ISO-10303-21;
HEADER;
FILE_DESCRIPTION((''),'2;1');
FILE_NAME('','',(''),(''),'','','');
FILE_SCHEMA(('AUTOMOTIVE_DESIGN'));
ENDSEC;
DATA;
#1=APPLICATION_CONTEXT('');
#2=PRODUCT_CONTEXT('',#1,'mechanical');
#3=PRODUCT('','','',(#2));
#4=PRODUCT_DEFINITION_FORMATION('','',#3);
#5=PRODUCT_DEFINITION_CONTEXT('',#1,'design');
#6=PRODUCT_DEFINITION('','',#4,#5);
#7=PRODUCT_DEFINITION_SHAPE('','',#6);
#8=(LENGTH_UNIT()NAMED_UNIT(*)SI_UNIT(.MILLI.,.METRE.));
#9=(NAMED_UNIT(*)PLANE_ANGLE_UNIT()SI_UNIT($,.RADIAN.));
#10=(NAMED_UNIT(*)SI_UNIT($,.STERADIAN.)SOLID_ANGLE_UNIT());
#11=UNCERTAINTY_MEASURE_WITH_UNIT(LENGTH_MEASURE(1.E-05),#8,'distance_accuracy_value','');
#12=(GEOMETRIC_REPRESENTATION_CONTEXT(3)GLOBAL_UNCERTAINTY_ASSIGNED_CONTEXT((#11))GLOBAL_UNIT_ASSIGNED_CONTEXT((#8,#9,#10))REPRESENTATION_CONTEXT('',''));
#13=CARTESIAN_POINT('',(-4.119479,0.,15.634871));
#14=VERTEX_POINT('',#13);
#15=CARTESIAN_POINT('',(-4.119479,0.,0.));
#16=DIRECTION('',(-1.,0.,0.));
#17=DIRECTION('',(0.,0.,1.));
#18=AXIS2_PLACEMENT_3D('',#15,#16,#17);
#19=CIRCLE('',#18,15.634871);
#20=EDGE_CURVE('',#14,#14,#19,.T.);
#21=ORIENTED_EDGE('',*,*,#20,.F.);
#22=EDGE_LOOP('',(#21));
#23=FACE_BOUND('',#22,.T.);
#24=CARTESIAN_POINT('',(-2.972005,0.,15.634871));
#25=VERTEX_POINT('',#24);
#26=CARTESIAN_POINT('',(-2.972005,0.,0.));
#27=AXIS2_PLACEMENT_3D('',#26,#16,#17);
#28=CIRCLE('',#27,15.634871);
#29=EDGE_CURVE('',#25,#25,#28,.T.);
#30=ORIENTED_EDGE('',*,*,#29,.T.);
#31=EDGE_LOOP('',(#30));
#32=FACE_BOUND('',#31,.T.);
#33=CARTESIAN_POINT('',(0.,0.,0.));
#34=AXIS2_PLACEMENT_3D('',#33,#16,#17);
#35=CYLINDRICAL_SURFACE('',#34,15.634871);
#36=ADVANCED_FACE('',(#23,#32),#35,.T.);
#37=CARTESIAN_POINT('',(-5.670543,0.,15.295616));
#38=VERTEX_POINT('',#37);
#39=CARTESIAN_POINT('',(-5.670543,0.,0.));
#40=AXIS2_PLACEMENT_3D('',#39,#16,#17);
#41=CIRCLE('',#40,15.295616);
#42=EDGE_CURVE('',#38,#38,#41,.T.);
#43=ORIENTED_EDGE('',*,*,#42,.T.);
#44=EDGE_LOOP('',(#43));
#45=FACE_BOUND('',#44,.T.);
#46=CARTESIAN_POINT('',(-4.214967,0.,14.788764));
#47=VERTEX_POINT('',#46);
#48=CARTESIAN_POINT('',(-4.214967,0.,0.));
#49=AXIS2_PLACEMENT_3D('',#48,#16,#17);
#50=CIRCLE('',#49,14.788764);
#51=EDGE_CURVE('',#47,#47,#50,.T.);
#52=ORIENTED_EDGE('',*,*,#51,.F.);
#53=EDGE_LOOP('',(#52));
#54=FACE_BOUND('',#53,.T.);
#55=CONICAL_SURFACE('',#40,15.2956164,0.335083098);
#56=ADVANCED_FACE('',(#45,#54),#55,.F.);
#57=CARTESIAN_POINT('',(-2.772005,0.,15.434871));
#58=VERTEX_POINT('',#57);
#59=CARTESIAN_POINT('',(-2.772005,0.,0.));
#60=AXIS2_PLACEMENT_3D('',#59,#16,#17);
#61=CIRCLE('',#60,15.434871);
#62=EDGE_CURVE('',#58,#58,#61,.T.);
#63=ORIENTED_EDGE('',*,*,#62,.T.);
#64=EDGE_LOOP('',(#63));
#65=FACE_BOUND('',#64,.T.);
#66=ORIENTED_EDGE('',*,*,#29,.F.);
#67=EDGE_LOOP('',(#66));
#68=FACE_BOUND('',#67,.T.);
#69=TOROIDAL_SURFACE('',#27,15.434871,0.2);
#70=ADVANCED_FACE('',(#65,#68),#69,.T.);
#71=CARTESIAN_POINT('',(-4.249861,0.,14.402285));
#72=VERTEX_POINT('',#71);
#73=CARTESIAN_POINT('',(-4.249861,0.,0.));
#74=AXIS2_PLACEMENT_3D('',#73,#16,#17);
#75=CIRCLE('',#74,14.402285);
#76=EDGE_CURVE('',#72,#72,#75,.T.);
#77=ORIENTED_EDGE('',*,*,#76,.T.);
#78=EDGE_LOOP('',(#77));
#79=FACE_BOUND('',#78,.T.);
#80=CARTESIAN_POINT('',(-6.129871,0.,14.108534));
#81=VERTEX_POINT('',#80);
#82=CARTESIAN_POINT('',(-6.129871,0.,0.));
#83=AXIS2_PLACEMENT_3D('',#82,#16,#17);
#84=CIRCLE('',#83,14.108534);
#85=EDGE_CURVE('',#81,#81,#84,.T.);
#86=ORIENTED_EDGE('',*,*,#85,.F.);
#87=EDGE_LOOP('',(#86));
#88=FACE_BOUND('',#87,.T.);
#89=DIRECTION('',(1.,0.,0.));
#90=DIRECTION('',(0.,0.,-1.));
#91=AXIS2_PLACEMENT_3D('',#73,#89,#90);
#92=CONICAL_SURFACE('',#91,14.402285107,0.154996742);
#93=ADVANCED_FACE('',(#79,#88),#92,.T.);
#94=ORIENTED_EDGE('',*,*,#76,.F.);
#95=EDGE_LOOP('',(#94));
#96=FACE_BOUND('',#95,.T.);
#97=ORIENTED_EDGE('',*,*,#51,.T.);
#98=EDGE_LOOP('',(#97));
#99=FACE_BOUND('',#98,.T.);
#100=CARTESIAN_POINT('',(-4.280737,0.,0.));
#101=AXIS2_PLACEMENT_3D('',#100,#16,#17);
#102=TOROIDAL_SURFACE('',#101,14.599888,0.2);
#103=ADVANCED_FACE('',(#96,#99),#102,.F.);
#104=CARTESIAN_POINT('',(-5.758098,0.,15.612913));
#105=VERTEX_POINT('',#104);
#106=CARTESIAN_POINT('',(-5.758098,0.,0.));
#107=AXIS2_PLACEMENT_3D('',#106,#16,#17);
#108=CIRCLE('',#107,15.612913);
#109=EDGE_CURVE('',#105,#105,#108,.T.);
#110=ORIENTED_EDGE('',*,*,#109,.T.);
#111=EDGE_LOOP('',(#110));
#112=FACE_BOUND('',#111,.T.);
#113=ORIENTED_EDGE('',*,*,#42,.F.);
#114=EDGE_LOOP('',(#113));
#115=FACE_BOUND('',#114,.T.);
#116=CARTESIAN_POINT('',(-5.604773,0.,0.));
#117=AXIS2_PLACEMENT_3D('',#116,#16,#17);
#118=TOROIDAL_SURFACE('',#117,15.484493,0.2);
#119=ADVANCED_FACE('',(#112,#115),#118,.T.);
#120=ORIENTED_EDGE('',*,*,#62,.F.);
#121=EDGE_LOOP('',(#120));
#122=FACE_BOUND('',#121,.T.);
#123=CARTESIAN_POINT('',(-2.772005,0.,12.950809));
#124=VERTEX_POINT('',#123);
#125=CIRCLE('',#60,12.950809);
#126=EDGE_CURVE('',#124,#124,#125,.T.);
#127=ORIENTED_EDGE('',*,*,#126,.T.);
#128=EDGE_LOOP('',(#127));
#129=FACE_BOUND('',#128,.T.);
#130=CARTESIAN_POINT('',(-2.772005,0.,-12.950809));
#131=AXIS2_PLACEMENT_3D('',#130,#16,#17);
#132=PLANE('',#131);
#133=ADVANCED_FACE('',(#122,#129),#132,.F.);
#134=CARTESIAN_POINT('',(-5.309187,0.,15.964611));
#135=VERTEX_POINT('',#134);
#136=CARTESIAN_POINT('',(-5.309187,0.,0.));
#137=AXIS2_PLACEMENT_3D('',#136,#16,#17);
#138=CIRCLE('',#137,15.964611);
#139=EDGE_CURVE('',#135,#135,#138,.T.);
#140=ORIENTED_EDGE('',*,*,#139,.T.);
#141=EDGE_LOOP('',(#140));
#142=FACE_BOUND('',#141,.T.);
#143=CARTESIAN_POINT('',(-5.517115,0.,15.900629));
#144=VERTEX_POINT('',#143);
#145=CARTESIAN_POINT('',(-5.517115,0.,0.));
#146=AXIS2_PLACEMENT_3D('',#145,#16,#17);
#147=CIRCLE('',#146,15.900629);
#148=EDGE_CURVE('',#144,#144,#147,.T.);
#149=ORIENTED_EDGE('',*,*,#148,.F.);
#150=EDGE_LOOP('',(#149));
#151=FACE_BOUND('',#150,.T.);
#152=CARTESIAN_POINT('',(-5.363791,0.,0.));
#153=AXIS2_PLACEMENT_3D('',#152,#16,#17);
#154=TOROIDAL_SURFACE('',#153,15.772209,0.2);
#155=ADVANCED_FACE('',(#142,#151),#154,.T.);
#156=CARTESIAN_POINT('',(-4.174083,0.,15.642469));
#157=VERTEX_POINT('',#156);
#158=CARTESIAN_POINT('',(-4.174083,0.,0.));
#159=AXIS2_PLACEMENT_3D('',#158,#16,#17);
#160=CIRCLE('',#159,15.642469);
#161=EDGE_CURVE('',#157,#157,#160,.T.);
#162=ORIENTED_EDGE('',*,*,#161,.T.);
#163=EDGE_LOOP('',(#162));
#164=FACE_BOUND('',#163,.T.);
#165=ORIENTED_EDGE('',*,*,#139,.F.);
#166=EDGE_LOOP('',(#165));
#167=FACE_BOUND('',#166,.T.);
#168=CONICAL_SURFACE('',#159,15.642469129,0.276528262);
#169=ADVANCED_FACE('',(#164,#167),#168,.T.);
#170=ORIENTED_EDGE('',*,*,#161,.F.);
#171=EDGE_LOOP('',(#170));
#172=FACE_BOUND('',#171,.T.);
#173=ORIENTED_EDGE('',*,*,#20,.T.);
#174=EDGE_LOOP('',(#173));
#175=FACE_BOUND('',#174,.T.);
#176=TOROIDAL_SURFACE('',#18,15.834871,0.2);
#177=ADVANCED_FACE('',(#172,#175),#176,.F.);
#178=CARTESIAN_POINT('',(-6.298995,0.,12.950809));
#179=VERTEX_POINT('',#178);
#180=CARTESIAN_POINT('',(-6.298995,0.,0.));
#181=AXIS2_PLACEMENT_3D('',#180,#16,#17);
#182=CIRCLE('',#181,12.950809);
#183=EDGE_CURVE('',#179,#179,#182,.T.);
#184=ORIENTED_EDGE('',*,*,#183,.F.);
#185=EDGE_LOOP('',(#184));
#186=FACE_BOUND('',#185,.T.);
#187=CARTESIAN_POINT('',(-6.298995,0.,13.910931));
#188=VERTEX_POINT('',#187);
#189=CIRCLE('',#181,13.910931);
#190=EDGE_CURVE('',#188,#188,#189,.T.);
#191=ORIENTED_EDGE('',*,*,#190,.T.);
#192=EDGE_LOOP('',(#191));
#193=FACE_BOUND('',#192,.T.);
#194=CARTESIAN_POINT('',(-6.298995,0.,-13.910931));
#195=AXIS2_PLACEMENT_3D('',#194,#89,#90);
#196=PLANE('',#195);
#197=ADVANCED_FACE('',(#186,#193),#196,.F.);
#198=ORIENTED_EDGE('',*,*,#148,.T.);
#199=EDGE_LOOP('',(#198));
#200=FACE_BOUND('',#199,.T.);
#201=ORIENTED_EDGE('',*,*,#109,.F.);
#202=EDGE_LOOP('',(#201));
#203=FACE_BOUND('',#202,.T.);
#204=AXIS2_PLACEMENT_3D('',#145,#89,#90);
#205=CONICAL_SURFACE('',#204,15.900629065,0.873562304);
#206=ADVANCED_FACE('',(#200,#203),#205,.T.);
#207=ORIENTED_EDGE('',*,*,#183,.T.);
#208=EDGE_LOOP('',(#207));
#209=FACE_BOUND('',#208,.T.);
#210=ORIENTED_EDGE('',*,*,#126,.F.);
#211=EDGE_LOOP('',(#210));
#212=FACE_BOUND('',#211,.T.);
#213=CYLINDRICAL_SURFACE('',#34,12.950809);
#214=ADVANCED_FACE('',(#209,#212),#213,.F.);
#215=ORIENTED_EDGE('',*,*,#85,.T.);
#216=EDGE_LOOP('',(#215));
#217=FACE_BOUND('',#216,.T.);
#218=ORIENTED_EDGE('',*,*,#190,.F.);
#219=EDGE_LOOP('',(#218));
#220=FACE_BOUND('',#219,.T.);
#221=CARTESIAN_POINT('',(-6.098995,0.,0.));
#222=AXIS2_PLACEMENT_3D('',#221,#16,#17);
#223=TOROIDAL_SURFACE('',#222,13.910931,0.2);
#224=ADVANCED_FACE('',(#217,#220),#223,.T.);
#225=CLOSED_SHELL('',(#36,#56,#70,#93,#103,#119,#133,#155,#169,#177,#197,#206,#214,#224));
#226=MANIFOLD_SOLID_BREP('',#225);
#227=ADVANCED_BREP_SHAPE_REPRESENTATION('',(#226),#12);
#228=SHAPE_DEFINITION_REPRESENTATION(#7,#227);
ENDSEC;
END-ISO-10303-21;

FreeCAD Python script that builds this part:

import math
import FreeCAD as App
import Part
import Sketcher
Q = App.Units.Quantity

doc = App.newDocument("Part")
body = doc.addObject("PartDesign::Body", "Body")

sketch1 = body.newObject("Sketcher::SketchObject", "Sketch")
sketch1.AttachmentSupport = (doc.getObject("XZ_Plane"), [""])
sketch1.MapMode = "FlatFace"
sketch1.addGeometry([
    Part.LineSegment(App.Vector(-6.3, -12.95, 0), App.Vector(-2.77, -12.95, 0)),
    Part.LineSegment(App.Vector(-2.77, -12.95, 0), App.Vector(-2.77, -15.43, 0)),
    Part.ArcOfCircle(Part.Circle(App.Vector(-2.97, -15.43, 0), App.Vector(0, 0, 1), 0.2), math.radians(-90), math.radians(0)),
    Part.LineSegment(App.Vector(-2.97, -15.63, 0), App.Vector(-4.12, -15.63, 0)),
    Part.ArcOfCircle(Part.Circle(App.Vector(-4.12, -15.83, 0), App.Vector(0, 0, 1), 0.2), math.radians(90), math.radians(105.84)),
    Part.LineSegment(App.Vector(-4.17, -15.64, 0), App.Vector(-5.31, -15.96, 0)),
    Part.ArcOfCircle(Part.Circle(App.Vector(-5.36, -15.77, 0), App.Vector(0, 0, 1), 0.2), math.radians(-140), math.radians(-74)),
    Part.LineSegment(App.Vector(-5.52, -15.9, 0), App.Vector(-5.76, -15.61, 0)),
    Part.ArcOfCircle(Part.Circle(App.Vector(-5.6, -15.48, 0), App.Vector(0, 0, 1), 0.2), math.radians(109), math.radians(220)),
    Part.LineSegment(App.Vector(-5.67, -15.3, 0), App.Vector(-4.21, -14.79, 0)),
    Part.ArcOfCircle(Part.Circle(App.Vector(-4.28, -14.6, 0), App.Vector(0, 0, 1), 0.2), math.radians(-71), math.radians(81)),
    Part.LineSegment(App.Vector(-4.25, -14.4, 0), App.Vector(-6.13, -14.11, 0)),
    Part.ArcOfCircle(Part.Circle(App.Vector(-6.1, -13.91, 0), App.Vector(0, 0, 1), 0.2), math.radians(180), math.radians(261)),
    Part.LineSegment(App.Vector(-6.3, -13.91, 0), App.Vector(-6.3, -12.95, 0)),
], False)
sketch1.addConstraint([
    Sketcher.Constraint("Coincident", 0, 2, 1, 1),
    Sketcher.Constraint("Tangent", 1, 2, 2, 2),
    Sketcher.Constraint("Tangent", 2, 1, 3, 1),
    Sketcher.Constraint("Tangent", 3, 2, 4, 1),
    Sketcher.Constraint("Tangent", 4, 2, 5, 1),
    Sketcher.Constraint("Tangent", 5, 2, 6, 2),
    Sketcher.Constraint("Tangent", 6, 1, 7, 1),
    Sketcher.Constraint("Tangent", 7, 2, 8, 2),
    Sketcher.Constraint("Tangent", 8, 1, 9, 1),
    Sketcher.Constraint("Tangent", 9, 2, 10, 1),
    Sketcher.Constraint("Tangent", 10, 2, 11, 1),
    Sketcher.Constraint("Tangent", 11, 2, 12, 2),
    Sketcher.Constraint("Tangent", 12, 1, 13, 1),
    Sketcher.Constraint("Coincident", 13, 2, 0, 1),
    Sketcher.Constraint("Horizontal", 0),
    Sketcher.Constraint("Vertical", 1),
    Sketcher.Constraint("Horizontal", 3),
    Sketcher.Constraint("Vertical", 13),
    Sketcher.Constraint("Equal", 2, 4),
    Sketcher.Constraint("Equal", 4, 6),
    Sketcher.Constraint("Equal", 6, 8),
    Sketcher.Constraint("Equal", 8, 10),
    Sketcher.Constraint("Equal", 10, 12),
    Sketcher.Constraint("Radius", 2, Q("0.2 mm")),
    Sketcher.Constraint("Distance", 9, Q("1.541298 mm")),
    Sketcher.Constraint("DistanceX", 0, 1, 0, 2, Q("3.52699 mm")),
    Sketcher.Constraint("DistanceY", 1, 2, 1, 1, Q("2.484062 mm")),
    Sketcher.Constraint("DistanceY", 4, 2, 3, 2, Q("0.007598 mm")),
    Sketcher.Constraint("DistanceY", 5, 2, 7, 2, Q("0.351698 mm")),
    Sketcher.Constraint("Distance", 5, Q("1.179931 mm")),
    Sketcher.Constraint("Distance", 11, Q("1.902821 mm")),
    Sketcher.Constraint("DistanceX", 3, 2, 3, 1, Q("1.147474 mm")),
    Sketcher.Constraint("DistanceY", 13, 1, 13, 2, Q("0.960122 mm")),
    Sketcher.Constraint("DistanceY", 2, 3, -1, 1, Q("15.434871 mm")),
    Sketcher.Constraint("DistanceX", 4, 3, -1, 1, Q("4.119479 mm")),
    Sketcher.Constraint("DistanceY", 6, 1, -1, 1, Q("15.900629 mm")),
])
revolution = body.newObject("PartDesign::Revolution", "Revolution")
revolution.Profile = sketch1
revolution.ReferenceAxis = (sketch1, ["H_Axis"])
revolution.Angle = 360

doc.recompute()
